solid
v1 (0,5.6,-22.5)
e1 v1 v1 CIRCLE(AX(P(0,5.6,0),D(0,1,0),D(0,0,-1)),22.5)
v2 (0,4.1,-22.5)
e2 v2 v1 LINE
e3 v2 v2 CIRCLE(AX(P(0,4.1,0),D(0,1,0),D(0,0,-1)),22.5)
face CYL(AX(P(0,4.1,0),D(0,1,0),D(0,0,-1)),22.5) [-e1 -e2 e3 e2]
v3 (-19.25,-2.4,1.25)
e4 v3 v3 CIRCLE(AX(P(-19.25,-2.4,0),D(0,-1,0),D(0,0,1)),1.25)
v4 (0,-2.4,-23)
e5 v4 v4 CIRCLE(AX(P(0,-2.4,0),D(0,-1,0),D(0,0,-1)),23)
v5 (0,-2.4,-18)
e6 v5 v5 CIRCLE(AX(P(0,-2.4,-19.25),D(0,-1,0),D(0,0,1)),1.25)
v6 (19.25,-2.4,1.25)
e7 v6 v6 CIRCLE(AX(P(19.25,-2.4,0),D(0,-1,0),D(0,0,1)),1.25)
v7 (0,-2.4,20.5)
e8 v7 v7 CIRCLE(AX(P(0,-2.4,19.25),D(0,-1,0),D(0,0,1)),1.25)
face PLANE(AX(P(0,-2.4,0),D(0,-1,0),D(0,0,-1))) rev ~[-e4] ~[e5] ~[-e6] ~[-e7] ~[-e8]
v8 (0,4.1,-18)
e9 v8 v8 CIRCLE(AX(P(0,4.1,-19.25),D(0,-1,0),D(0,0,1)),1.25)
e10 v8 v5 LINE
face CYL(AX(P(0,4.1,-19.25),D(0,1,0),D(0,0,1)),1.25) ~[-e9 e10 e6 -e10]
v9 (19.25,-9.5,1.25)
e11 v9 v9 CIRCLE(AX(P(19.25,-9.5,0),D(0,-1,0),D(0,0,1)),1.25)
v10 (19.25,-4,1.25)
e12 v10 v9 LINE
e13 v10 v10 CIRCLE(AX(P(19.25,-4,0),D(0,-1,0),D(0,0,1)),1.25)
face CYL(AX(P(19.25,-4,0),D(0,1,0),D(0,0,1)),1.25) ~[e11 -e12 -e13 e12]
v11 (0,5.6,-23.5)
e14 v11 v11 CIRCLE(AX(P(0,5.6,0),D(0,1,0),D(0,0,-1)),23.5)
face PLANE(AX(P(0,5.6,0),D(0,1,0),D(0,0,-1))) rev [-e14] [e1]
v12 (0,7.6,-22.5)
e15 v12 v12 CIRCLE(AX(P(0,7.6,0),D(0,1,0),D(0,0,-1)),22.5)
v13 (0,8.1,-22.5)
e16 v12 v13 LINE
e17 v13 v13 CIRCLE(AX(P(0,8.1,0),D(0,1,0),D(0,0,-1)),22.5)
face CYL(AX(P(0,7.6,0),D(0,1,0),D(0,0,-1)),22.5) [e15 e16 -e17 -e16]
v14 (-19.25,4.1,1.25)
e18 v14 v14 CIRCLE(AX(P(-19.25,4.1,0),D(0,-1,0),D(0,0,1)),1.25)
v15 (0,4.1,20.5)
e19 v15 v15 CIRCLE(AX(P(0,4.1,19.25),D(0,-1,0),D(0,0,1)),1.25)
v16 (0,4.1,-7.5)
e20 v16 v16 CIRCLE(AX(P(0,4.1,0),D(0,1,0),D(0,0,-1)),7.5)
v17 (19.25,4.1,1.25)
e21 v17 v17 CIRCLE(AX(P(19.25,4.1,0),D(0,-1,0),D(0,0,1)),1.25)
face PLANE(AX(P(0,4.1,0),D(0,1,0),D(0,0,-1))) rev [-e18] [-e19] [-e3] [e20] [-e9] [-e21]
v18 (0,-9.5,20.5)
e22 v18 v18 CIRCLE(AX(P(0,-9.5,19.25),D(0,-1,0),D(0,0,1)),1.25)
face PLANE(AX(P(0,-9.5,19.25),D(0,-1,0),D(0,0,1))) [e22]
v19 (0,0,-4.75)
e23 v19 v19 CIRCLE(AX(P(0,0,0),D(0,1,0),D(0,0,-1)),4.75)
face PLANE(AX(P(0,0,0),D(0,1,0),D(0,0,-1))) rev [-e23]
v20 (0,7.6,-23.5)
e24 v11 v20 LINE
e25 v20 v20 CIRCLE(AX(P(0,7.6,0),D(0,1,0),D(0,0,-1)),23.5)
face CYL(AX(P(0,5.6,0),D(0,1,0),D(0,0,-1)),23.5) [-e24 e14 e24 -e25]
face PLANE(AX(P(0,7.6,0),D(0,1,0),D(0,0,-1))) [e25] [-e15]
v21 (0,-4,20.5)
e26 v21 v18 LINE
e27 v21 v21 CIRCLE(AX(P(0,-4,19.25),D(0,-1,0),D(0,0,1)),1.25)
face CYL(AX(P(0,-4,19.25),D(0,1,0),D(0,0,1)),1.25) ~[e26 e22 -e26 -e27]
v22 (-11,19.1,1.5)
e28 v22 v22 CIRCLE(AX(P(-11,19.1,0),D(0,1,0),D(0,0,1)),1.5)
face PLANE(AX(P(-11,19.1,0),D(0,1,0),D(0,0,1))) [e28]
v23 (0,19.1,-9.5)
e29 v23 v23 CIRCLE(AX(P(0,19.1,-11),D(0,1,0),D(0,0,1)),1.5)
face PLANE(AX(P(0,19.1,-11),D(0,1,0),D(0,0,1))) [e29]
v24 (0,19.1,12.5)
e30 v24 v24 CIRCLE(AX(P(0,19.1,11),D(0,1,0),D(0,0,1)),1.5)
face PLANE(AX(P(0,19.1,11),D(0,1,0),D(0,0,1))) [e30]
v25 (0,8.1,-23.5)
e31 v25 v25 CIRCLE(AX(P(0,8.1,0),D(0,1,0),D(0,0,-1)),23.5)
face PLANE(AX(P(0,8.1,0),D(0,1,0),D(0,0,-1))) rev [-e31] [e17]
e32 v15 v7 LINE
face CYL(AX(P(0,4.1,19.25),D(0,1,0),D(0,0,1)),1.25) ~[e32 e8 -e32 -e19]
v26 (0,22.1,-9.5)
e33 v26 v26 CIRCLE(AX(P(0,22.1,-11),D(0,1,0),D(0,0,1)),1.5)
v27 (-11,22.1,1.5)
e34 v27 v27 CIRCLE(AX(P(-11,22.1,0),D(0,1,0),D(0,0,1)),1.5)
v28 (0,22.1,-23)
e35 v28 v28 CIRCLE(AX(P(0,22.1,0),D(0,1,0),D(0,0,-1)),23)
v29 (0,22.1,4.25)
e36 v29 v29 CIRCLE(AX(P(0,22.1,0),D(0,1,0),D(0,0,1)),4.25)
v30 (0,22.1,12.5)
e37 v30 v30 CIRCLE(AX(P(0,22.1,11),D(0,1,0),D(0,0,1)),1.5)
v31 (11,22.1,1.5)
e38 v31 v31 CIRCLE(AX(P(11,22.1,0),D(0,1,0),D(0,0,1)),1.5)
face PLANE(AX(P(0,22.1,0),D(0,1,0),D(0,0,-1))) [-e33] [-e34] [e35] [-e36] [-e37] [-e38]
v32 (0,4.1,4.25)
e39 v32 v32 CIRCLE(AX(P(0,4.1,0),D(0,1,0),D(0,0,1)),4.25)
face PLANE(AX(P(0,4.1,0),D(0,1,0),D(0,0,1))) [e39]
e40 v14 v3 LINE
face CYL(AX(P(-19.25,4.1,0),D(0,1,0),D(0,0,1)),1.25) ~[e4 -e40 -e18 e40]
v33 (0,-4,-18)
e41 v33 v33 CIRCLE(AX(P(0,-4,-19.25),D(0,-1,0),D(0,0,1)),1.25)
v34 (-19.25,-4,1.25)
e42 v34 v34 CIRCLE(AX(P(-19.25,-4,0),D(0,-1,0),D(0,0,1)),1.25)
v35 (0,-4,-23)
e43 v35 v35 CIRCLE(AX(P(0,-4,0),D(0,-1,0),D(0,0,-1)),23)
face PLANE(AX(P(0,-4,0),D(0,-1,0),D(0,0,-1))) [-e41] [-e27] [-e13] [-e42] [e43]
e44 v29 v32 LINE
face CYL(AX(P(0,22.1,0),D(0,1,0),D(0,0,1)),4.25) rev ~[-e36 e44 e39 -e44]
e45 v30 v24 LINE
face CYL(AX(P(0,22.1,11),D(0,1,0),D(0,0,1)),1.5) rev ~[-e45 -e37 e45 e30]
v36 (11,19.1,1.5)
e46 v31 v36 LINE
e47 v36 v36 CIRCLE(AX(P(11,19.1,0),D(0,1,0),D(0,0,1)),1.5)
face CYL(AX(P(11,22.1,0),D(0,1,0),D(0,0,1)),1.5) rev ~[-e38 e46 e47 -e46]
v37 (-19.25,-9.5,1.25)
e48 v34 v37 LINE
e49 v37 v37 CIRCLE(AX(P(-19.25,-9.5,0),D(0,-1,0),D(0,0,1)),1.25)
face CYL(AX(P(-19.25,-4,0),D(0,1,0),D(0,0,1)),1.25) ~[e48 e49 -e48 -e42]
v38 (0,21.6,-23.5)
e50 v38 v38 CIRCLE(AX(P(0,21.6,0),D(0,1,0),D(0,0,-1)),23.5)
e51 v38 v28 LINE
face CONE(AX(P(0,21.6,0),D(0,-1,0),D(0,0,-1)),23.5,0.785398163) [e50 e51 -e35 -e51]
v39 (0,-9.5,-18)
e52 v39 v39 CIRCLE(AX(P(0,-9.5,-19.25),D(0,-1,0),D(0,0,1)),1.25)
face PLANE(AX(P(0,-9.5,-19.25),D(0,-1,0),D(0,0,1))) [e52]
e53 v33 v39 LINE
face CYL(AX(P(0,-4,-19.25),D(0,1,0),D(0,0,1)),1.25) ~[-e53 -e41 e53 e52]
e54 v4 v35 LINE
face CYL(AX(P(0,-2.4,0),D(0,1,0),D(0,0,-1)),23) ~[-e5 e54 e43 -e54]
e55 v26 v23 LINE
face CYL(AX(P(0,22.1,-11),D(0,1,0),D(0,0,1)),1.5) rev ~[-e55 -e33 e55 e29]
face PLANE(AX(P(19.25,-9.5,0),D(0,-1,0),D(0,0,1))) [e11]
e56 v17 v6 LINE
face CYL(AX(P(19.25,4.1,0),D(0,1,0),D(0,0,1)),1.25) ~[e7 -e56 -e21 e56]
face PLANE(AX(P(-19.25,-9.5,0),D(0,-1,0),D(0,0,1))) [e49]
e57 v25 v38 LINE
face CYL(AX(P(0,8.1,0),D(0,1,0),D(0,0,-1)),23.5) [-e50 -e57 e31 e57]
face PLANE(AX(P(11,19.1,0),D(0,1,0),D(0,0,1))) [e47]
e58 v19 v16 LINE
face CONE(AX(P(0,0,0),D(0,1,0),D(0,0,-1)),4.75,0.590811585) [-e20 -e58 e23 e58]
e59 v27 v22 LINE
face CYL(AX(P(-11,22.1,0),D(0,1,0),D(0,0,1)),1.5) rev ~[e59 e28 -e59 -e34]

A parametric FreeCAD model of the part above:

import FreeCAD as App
import Part
import Sketcher

V = App.Vector
Q = App.Units.Quantity


def add_polygon(sketch, points):
    """Adds a closed chain of lines whose ends are joined by coincident constraints."""
    first, n = sketch.GeometryCount, len(points)
    for a, b in zip(points, points[1:] + points[:1]):
        sketch.addGeometry(Part.LineSegment(App.Vector(*a, 0), App.Vector(*b, 0)), False)
    for i in range(n):
        sketch.addConstraint(Sketcher.Constraint("Coincident", first + i, 2, first + (i + 1) % n, 1))

doc = App.newDocument("Part")
body = doc.addObject("PartDesign::Body", "Body")

sketch1 = body.newObject("Sketcher::SketchObject", "Sketch")
sketch1.AttachmentSupport = (doc.getObject("XY_Plane"), [""])
sketch1.MapMode = "FlatFace"
add_polygon(sketch1, [(23, 22.1), (0, 22.1), (0, 0), (4.8, 0), (7.5, 4.1), (22.5, 4.1), (22.5, 5.6), (23.5, 5.6), (23.5, 7.6), (22.5, 7.6), (22.5, 8.1), (23.5, 8.1), (23.5, 21.6)])
sketch1.addConstraint([
    Sketcher.Constraint("Horizontal", 0),
    Sketcher.Constraint("Vertical", 1),
    Sketcher.Constraint("Horizontal", 2),
    Sketcher.Constraint("Horizontal", 4),
    Sketcher.Constraint("Vertical", 5),
    Sketcher.Constraint("Horizontal", 6),
    Sketcher.Constraint("Vertical", 7),
    Sketcher.Constraint("Horizontal", 8),
    Sketcher.Constraint("Vertical", 9),
    Sketcher.Constraint("Horizontal", 10),
    Sketcher.Constraint("Vertical", 11),
    Sketcher.Constraint("Coincident", 1, 2, -1, 1),
    Sketcher.Constraint("Vertical", 5, 2, 8, 2),
    Sketcher.Constraint("Vertical", 7, 2, 10, 2),
    Sketcher.Constraint("DistanceX", 0, 2, 0, 1, Q("23 mm")),
    Sketcher.Constraint("DistanceX", 4, 1, 4, 2, Q("15 mm")),
    Sketcher.Constraint("DistanceX", 6, 1, 6, 2, Q("1 mm")),
    Sketcher.Constraint("DistanceY", 7, 1, 7, 2, Q("2 mm")),
    Sketcher.Constraint("Angle", 12, Q("135 deg")),
    Sketcher.Constraint("DistanceY", 1, 2, 1, 1, Q("22.1 mm")),
    Sketcher.Constraint("DistanceY", 5, 1, 5, 2, Q("1.5 mm")),
    Sketcher.Constraint("DistanceY", 9, 1, 9, 2, Q("0.5 mm")),
    Sketcher.Constraint("DistanceY", 11, 1, 11, 2, Q("13.5 mm")),
    Sketcher.Constraint("DistanceY", 3, 2, 0, 2, Q("18 mm")),
    Sketcher.Constraint("DistanceX", 2, 1, 2, 2, Q("4.75 mm")),
])
revolution = body.newObject("PartDesign::Revolution", "Revolution")
revolution.Profile = sketch1
revolution.ReferenceAxis = (sketch1, ["V_Axis"])
revolution.Angle = 360

sketch2 = body.newObject("Sketcher::SketchObject", "Sketch001")
sketch2.AttachmentSupport = (doc.getObject("XZ_Plane"), [""])
sketch2.MapMode = "FlatFace"
sketch2.AttachmentOffset = App.Placement(V(0, 0, -22.1), App.Rotation())
sketch2.addGeometry([
    Part.Circle(V(0, -11, 0), V(0, 0, 1), 1.5),
    Part.Circle(V(11, 0, 0), V(0, 0, 1), 1.5),
    Part.Circle(V(0, 11, 0), V(0, 0, 1), 1.5),
    Part.Circle(V(-11, 0, 0), V(0, 0, 1), 1.5),
], False)
sketch2.addConstraint([
    Sketcher.Constraint("Equal", 0, 1),
    Sketcher.Constraint("Equal", 1, 2),
    Sketcher.Constraint("Equal", 2, 3),
    Sketcher.Constraint("Symmetric", 0, 3, 2, 3, -1, 1),
    Sketcher.Constraint("Symmetric", 1, 3, 3, 3, -1, 1),
    Sketcher.Constraint("PointOnObject", 0, 3, -2),
    Sketcher.Constraint("PointOnObject", 1, 3, -1),
    Sketcher.Constraint("Diameter", 0, Q("3 mm")),
    Sketcher.Constraint("DistanceY", 0, 3, -1, 1, Q("11 mm")),
    Sketcher.Constraint("DistanceX", -1, 1, 1, 3, Q("11 mm")),
])
pocket1 = body.newObject("PartDesign::Pocket", "Pocket")
pocket1.Profile = sketch2
pocket1.Length = 3
pocket1.Reversed = True

sketch3 = body.newObject("Sketcher::SketchObject", "Sketch002")
sketch3.AttachmentSupport = (doc.getObject("XZ_Plane"), [""])
sketch3.MapMode = "FlatFace"
sketch3.AttachmentOffset = App.Placement(V(0, 0, -22.1), App.Rotation())
sketch3.addGeometry(Part.Circle(V(0, 0, 0), V(0, 0, 1), 4.2), False)
sketch3.addConstraint([
    Sketcher.Constraint("Coincident", 0, 3, -1, 1),
    Sketcher.Constraint("Diameter", 0, Q("8.5 mm")),
])
pocket2 = body.newObject("PartDesign::Pocket", "Pocket001")
pocket2.Profile = sketch3
pocket2.Length = 18
pocket2.Reversed = True

sketch4 = body.newObject("Sketcher::SketchObject", "Sketch003")
sketch4.AttachmentSupport = (doc.getObject("XZ_Plane"), [""])
sketch4.MapMode = "FlatFace"
sketch4.AttachmentOffset = App.Placement(V(0, 0, -4.1), App.Rotation())
sketch4.addGeometry([
    Part.Circle(V(0, 19.2, 0), V(0, 0, 1), 1.2),
    Part.Circle(V(19.2, 0, 0), V(0, 0, 1), 1.2),
    Part.Circle(V(0, -19.2, 0), V(0, 0, 1), 1.2),
    Part.Circle(V(-19.2, 0, 0), V(0, 0, 1), 1.2),
], False)
sketch4.addConstraint([
    Sketcher.Constraint("Equal", 0, 1),
    Sketcher.Constraint("Equal", 1, 2),
    Sketcher.Constraint("Equal", 2, 3),
    Sketcher.Constraint("Symmetric", 0, 3, 2, 3, -1, 1),
    Sketcher.Constraint("Symmetric", 1, 3, 3, 3, -1, 1),
    Sketcher.Constraint("PointOnObject", 0, 3, -2),
    Sketcher.Constraint("PointOnObject", 1, 3, -1),
    Sketcher.Constraint("Diameter", 0, Q("2.5 mm")),
    Sketcher.Constraint("DistanceY", 2, 3, 0, 3, Q("38.5 mm")),
    Sketcher.Constraint("DistanceX", 3, 3, 1, 3, Q("38.5 mm")),
])
pad1 = body.newObject("PartDesign::Pad", "Pad")
pad1.Profile = sketch4
pad1.Length = 6.5

sketch5 = body.newObject("Sketcher::SketchObject", "Sketch004")
sketch5.AttachmentSupport = (doc.getObject("XZ_Plane"), [""])
sketch5.MapMode = "FlatFace"
sketch5.AttachmentOffset = App.Placement(V(0, 0, 2.4), App.Rotation())
sketch5.addGeometry(Part.Circle(V(0, 0, 0), V(0, 0, 1), 23), False)
sketch5.addConstraint([
    Sketcher.Constraint("Coincident", 0, 3, -1, 1),
    Sketcher.Constraint("Diameter", 0, Q("46 mm")),
])
pad2 = body.newObject("PartDesign::Pad", "Pad001")
pad2.Profile = sketch5
pad2.Length = 1.6

sketch6 = body.newObject("Sketcher::SketchObject", "Sketch005")
sketch6.AttachmentSupport = (doc.getObject("XZ_Plane"), [""])
sketch6.MapMode = "FlatFace"
sketch6.AttachmentOffset = App.Placement(V(0, 0, 4), App.Rotation())
sketch6.addGeometry([
    Part.Circle(V(0, 19.2, 0), V(0, 0, 1), 1.2),
    Part.Circle(V(19.2, 0, 0), V(0, 0, 1), 1.2),
    Part.Circle(V(0, -19.2, 0), V(0, 0, 1), 1.2),
    Part.Circle(V(-19.2, 0, 0), V(0, 0, 1), 1.2),
], False)
sketch6.addConstraint([
    Sketcher.Constraint("Equal", 0, 1),
    Sketcher.Constraint("Equal", 1, 2),
    Sketcher.Constraint("Equal", 2, 3),
    Sketcher.Constraint("Symmetric", 0, 3, 2, 3, -1, 1),
    Sketcher.Constraint("Symmetric", 1, 3, 3, 3, -1, 1),
    Sketcher.Constraint("PointOnObject", 0, 3, -2),
    Sketcher.Constraint("PointOnObject", 1, 3, -1),
    Sketcher.Constraint("Diameter", 0, Q("2.5 mm")),
    Sketcher.Constraint("DistanceY", 2, 3, 0, 3, Q("38.5 mm")),
    Sketcher.Constraint("DistanceX", 3, 3, 1, 3, Q("38.5 mm")),
])
pad3 = body.newObject("PartDesign::Pad", "Pad002")
pad3.Profile = sketch6
pad3.Length = 5.5

doc.recompute()
